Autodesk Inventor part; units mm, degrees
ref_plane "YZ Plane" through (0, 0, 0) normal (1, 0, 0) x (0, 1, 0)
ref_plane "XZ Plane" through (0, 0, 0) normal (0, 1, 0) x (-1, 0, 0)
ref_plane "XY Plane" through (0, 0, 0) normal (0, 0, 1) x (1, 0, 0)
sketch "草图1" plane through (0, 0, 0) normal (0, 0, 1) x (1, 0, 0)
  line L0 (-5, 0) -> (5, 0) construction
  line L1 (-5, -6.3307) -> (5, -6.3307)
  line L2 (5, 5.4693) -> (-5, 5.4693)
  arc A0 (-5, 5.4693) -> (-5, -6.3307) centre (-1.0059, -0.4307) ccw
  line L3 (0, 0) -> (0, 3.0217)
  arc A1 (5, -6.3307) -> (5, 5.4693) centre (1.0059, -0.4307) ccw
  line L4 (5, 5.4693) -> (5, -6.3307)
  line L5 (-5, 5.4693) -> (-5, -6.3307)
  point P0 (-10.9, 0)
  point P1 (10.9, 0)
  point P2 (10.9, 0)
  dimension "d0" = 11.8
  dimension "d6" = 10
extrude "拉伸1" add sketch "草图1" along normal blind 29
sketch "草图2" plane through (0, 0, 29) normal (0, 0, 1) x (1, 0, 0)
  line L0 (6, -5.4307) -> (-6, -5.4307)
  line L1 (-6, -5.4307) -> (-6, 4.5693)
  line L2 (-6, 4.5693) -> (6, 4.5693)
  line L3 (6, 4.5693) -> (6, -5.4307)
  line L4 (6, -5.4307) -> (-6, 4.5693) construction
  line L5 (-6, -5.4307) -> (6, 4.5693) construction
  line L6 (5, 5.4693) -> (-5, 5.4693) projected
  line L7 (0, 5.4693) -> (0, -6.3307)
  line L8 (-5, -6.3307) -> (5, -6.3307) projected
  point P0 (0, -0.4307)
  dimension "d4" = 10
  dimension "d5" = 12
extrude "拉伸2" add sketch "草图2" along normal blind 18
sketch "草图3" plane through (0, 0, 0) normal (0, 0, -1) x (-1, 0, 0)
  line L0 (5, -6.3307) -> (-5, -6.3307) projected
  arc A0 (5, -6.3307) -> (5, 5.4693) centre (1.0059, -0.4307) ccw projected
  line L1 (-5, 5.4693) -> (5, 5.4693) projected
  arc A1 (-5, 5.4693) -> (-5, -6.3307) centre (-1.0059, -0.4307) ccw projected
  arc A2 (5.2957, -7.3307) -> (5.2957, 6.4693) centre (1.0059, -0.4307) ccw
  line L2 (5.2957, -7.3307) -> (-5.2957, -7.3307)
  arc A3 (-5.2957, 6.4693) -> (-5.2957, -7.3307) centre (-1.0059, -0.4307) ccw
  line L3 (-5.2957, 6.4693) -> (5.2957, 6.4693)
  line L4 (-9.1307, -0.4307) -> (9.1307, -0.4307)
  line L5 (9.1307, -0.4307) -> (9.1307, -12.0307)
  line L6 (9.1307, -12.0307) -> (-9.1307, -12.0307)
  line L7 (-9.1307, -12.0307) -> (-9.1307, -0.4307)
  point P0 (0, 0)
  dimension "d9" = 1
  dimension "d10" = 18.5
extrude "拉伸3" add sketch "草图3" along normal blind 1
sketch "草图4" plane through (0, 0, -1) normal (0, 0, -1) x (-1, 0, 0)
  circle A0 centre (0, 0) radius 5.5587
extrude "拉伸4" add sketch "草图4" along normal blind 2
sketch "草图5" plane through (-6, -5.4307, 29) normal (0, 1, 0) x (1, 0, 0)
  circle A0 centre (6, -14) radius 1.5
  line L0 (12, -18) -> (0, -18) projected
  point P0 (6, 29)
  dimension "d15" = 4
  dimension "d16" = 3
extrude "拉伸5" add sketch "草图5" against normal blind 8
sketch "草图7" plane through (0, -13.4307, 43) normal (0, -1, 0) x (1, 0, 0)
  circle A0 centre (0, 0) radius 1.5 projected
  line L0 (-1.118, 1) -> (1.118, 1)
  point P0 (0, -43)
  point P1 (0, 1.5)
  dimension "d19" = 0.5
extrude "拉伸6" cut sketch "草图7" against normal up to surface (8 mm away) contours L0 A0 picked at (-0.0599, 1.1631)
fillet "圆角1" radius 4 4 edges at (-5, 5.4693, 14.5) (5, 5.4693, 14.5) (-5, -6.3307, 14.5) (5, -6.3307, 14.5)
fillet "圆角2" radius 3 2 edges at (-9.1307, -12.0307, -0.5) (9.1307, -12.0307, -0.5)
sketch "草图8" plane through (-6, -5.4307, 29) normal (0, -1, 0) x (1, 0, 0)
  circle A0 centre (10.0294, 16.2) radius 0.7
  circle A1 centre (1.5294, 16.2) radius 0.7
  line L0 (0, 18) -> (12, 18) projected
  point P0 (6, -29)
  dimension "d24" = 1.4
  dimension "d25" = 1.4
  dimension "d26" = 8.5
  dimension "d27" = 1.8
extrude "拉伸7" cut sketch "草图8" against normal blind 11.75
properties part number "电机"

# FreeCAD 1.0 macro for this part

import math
import FreeCAD as App
import Part
import Sketcher


def edges_at(feature, points):
    """Names of the edges that pass closest to the given points."""
    edges = feature.Shape.Edges
    near = lambda p: min(range(len(edges)), key=lambda i: edges[i].distToShape(Part.Vertex(*p))[0])
    return sorted({f"Edge{near(p) + 1}" for p in points})


def add_polygon(sketch, points):
    """Adds a closed chain of lines whose ends are joined by coincident constraints."""
    first, n = sketch.GeometryCount, len(points)
    for a, b in zip(points, points[1:] + points[:1]):
        sketch.addGeometry(Part.LineSegment(App.Vector(*a, 0), App.Vector(*b, 0)), False)
    for i in range(n):
        sketch.addConstraint(Sketcher.Constraint("Coincident", first + i, 2, first + (i + 1) % n, 1))

doc = App.newDocument("Part")
body = doc.addObject("PartDesign::Body", "Body")

# Sketch on XY plane
sketch1 = body.newObject("Sketcher::SketchObject", "Sketch")
sketch1.AttachmentSupport = (doc.getObject("XY_Plane"), [""])
sketch1.MapMode = "FlatFace"
sketch1.addGeometry([
    Part.LineSegment(App.Vector(5, 5.4693, 0), App.Vector(-5, 5.4693, 0)),
    Part.ArcOfCircle(Part.Circle(App.Vector(-1.0059, -0.4307, 0), App.Vector(0, 0, 1), 7.124804), math.radians(124.096668), math.radians(235.903332)),
    Part.LineSegment(App.Vector(-5, -6.3307, 0), App.Vector(5, -6.3307, 0)),
    Part.ArcOfCircle(Part.Circle(App.Vector(1.0059, -0.4307, 0), App.Vector(0, 0, 1), 7.124804), math.radians(-55.903332), math.radians(55.903332)),
], False)
sketch1.addConstraint([
    Sketcher.Constraint("Coincident", 0, 2, 1, 1),
    Sketcher.Constraint("Coincident", 1, 2, 2, 1),
    Sketcher.Constraint("Coincident", 2, 2, 3, 1),
    Sketcher.Constraint("Coincident", 3, 2, 0, 1),
    Sketcher.Constraint("Horizontal", 0),
    Sketcher.Constraint("Horizontal", 2),
    Sketcher.Constraint("Equal", 1, 3),
    Sketcher.Constraint("Symmetric", 1, 3, 3, 3, -2),
    Sketcher.Constraint("Vertical", 0, 2, 1, 2),
    Sketcher.Constraint("DistanceX", 0, 2, 0, 1, 10.0),
    Sketcher.Constraint("DistanceY", 1, 2, 0, 2, 11.8),
    Sketcher.Constraint("Radius", 1, 7.1248),
    Sketcher.Constraint("DistanceY", 1, 3, -1, 1, 0.4307),
])
pad1 = body.newObject("PartDesign::Pad", "Pad")
pad1.Profile = sketch1
pad1.Length = 29

# Sketch on XY plane
sketch2 = body.newObject("Sketcher::SketchObject", "Sketch001")
sketch2.AttachmentSupport = (doc.getObject("XY_Plane"), [""])
sketch2.MapMode = "FlatFace"
sketch2.AttachmentOffset = App.Placement(App.Vector(0, 0, 29), App.Rotation())
add_polygon(sketch2, [(6, -5.4307), (6, 4.5693), (-6, 4.5693), (-6, -5.4307)])  # lines 0-3
sketch2.addConstraint([
    Sketcher.Constraint("Vertical", 0),
    Sketcher.Constraint("Horizontal", 1),
    Sketcher.Constraint("Vertical", 2),
    Sketcher.Constraint("Horizontal", 3),
    Sketcher.Constraint("DistanceX", 1, 2, 1, 1, 12.0),
    Sketcher.Constraint("DistanceY", 0, 1, 0, 2, 10.0),
    Sketcher.Constraint("DistanceX", -1, 1, 0, 2, 6.0),
    Sketcher.Constraint("DistanceY", -1, 1, 0, 2, 4.5693),
])
pad2 = body.newObject("PartDesign::Pad", "Pad001")
pad2.Profile = sketch2
pad2.Length = 18

# Sketch on XY plane
sketch3 = body.newObject("Sketcher::SketchObject", "Sketch002")
sketch3.AttachmentSupport = (doc.getObject("XY_Plane"), [""])
sketch3.MapMode = "FlatFace"
sketch3.addGeometry([
    Part.ArcOfCircle(Part.Circle(App.Vector(-1.0059, -0.4307, 0), App.Vector(0, 0, 1), 8.124801), math.radians(121.869636), math.radians(180)),  # 0
    Part.LineSegment(App.Vector(-5.2957, 6.4693, 0), App.Vector(5.2957, 6.4693, 0)),  # 1
    Part.ArcOfCircle(Part.Circle(App.Vector(1.0059, -0.4307, 0), App.Vector(0, 0, 1), 8.124801), math.radians(0), math.radians(58.130364)),  # 2
    Part.LineSegment(App.Vector(9.1307, -0.4307, 0), App.Vector(9.1307, -12.0307, 0)),  # 3
    Part.LineSegment(App.Vector(9.1307, -12.0307, 0), App.Vector(-9.1307, -12.0307, 0)),  # 4
    Part.LineSegment(App.Vector(-9.1307, -12.0307, 0), App.Vector(-9.1307, -0.4307, 0)),  # 5
], False)
sketch3.addConstraint([
    Sketcher.Constraint("Coincident", 0, 1, 1, 1),
    Sketcher.Constraint("Coincident", 1, 2, 2, 2),
    Sketcher.Constraint("Tangent", 2, 1, 3, 1),
    Sketcher.Constraint("Coincident", 3, 2, 4, 1),
    Sketcher.Constraint("Coincident", 4, 2, 5, 1),
    Sketcher.Constraint("Tangent", 5, 2, 0, 2),
    Sketcher.Constraint("Horizontal", 1),
    Sketcher.Constraint("Vertical", 3),
    Sketcher.Constraint("Horizontal", 4),
    Sketcher.Constraint("Vertical", 5),
    Sketcher.Constraint("Equal", 0, 2),
    Sketcher.Constraint("Symmetric", 0, 3, 2, 3, -2),
    Sketcher.Constraint("DistanceY", 3, 2, 1, 2, 18.5),
    Sketcher.Constraint("DistanceY", 3, 2, 3, 1, 11.6),
    Sketcher.Constraint("Radius", 0, 8.1248),
    Sketcher.Constraint("DistanceX", 1, 1, 1, 2, 10.5914),
    Sketcher.Constraint("DistanceY", 0, 3, -1, 1, 0.4307),
])
pad3 = body.newObject("PartDesign::Pad", "Pad002")
pad3.Profile = sketch3
pad3.Length = 1
pad3.Reversed = True

# Sketch on XY plane
sketch4 = body.newObject("Sketcher::SketchObject", "Sketch003")
sketch4.AttachmentSupport = (doc.getObject("XY_Plane"), [""])
sketch4.MapMode = "FlatFace"
sketch4.AttachmentOffset = App.Placement(App.Vector(0, 0, -1), App.Rotation())
sketch4.addGeometry(Part.Circle(App.Vector(0, 0, 0), App.Vector(0, 0, 1), 5.5587), False)
sketch4.addConstraint([
    Sketcher.Constraint("Coincident", 0, 3, -1, 1),
    Sketcher.Constraint("Diameter", 0, 11.1174),
])
pad4 = body.newObject("PartDesign::Pad", "Pad003")
pad4.Profile = sketch4
pad4.Length = 2
pad4.Reversed = True

# Sketch on XZ plane
sketch5 = body.newObject("Sketcher::SketchObject", "Sketch004")
sketch5.AttachmentSupport = (doc.getObject("XZ_Plane"), [""])
sketch5.MapMode = "FlatFace"
sketch5.AttachmentOffset = App.Placement(App.Vector(0, 0, 5.4307), App.Rotation())
sketch5.addGeometry(Part.Circle(App.Vector(0, 43, 0), App.Vector(0, 0, 1), 1.5), False)
sketch5.addConstraint([
    Sketcher.Constraint("PointOnObject", 0, 3, -2),
    Sketcher.Constraint("Diameter", 0, 3.0),
    Sketcher.Constraint("DistanceY", -1, 1, 0, 3, 43.0),
])
pad5 = body.newObject("PartDesign::Pad", "Pad004")
pad5.Profile = sketch5
pad5.Length = 8

# Sketch on XZ plane
sketch6 = body.newObject("Sketcher::SketchObject", "Sketch005")
sketch6.AttachmentSupport = (doc.getObject("XZ_Plane"), [""])
sketch6.MapMode = "FlatFace"
sketch6.AttachmentOffset = App.Placement(App.Vector(0, 0, 13.4307), App.Rotation())
sketch6.addGeometry([
    Part.LineSegment(App.Vector(-1.118, 44, 0), App.Vector(1.118, 44, 0)),
    Part.ArcOfCircle(Part.Circle(App.Vector(0, 43, 0), App.Vector(0, 0, 1), 1.5), math.radians(41.81118), math.radians(138.18882)),
], False)
sketch6.addConstraint([
    Sketcher.Constraint("Coincident", 0, 1, 1, 2),
    Sketcher.Constraint("Coincident", 1, 1, 0, 2),
    Sketcher.Constraint("Horizontal", 0),
    Sketcher.Constraint("PointOnObject", 1, 3, -2),
    Sketcher.Constraint("Radius", 1, 1.5),
    Sketcher.Constraint("DistanceY", -1, 1, 1, 3, 43.0),
    Sketcher.Constraint("DistanceY", -1, 1, 0, 1, 44.0),
])
pocket1 = body.newObject("PartDesign::Pocket", "Pocket")
pocket1.Profile = sketch6
pocket1.Length = 8
doc.recompute()

fillet = body.newObject("PartDesign::Fillet", "Fillet")
fillet.Base = (pocket1, edges_at(pocket1, [
    (-5, 5.469, 14.5),
    (5, 5.469, 14.5),
    (-5, -6.331, 14.5),
    (5, -6.331, 14.5),
]))
fillet.Radius = 4
doc.recompute()

fillet2 = body.newObject("PartDesign::Fillet", "Fillet001")
fillet2.Base = (fillet, edges_at(fillet, [(-9.131, -12.031, -0.5), (9.131, -12.031, -0.5)]))
fillet2.Radius = 3

# Sketch on XZ plane
sketch7 = body.newObject("Sketcher::SketchObject", "Sketch006")
sketch7.AttachmentSupport = (doc.getObject("XZ_Plane"), [""])
sketch7.MapMode = "FlatFace"
sketch7.AttachmentOffset = App.Placement(App.Vector(0, 0, 5.4307), App.Rotation())
sketch7.addGeometry([
    Part.Circle(App.Vector(4.0294, 45.2, 0), App.Vector(0, 0, 1), 0.7),
    Part.Circle(App.Vector(-4.4706, 45.2, 0), App.Vector(0, 0, 1), 0.7),
], False)
sketch7.addConstraint([
    Sketcher.Constraint("Equal", 0, 1),
    Sketcher.Constraint("Horizontal", 0, 3, 1, 3),
    Sketcher.Constraint("Diameter", 0, 1.4),
    Sketcher.Constraint("DistanceX", 1, 3, 0, 3, 8.5),
    Sketcher.Constraint("DistanceY", -1, 1, 0, 3, 45.2),
    Sketcher.Constraint("DistanceX", -1, 1, 0, 3, 4.0294),
])
pocket2 = body.newObject("PartDesign::Pocket", "Pocket001")
pocket2.Profile = sketch7
pocket2.Length = 11.75

doc.recompute()
